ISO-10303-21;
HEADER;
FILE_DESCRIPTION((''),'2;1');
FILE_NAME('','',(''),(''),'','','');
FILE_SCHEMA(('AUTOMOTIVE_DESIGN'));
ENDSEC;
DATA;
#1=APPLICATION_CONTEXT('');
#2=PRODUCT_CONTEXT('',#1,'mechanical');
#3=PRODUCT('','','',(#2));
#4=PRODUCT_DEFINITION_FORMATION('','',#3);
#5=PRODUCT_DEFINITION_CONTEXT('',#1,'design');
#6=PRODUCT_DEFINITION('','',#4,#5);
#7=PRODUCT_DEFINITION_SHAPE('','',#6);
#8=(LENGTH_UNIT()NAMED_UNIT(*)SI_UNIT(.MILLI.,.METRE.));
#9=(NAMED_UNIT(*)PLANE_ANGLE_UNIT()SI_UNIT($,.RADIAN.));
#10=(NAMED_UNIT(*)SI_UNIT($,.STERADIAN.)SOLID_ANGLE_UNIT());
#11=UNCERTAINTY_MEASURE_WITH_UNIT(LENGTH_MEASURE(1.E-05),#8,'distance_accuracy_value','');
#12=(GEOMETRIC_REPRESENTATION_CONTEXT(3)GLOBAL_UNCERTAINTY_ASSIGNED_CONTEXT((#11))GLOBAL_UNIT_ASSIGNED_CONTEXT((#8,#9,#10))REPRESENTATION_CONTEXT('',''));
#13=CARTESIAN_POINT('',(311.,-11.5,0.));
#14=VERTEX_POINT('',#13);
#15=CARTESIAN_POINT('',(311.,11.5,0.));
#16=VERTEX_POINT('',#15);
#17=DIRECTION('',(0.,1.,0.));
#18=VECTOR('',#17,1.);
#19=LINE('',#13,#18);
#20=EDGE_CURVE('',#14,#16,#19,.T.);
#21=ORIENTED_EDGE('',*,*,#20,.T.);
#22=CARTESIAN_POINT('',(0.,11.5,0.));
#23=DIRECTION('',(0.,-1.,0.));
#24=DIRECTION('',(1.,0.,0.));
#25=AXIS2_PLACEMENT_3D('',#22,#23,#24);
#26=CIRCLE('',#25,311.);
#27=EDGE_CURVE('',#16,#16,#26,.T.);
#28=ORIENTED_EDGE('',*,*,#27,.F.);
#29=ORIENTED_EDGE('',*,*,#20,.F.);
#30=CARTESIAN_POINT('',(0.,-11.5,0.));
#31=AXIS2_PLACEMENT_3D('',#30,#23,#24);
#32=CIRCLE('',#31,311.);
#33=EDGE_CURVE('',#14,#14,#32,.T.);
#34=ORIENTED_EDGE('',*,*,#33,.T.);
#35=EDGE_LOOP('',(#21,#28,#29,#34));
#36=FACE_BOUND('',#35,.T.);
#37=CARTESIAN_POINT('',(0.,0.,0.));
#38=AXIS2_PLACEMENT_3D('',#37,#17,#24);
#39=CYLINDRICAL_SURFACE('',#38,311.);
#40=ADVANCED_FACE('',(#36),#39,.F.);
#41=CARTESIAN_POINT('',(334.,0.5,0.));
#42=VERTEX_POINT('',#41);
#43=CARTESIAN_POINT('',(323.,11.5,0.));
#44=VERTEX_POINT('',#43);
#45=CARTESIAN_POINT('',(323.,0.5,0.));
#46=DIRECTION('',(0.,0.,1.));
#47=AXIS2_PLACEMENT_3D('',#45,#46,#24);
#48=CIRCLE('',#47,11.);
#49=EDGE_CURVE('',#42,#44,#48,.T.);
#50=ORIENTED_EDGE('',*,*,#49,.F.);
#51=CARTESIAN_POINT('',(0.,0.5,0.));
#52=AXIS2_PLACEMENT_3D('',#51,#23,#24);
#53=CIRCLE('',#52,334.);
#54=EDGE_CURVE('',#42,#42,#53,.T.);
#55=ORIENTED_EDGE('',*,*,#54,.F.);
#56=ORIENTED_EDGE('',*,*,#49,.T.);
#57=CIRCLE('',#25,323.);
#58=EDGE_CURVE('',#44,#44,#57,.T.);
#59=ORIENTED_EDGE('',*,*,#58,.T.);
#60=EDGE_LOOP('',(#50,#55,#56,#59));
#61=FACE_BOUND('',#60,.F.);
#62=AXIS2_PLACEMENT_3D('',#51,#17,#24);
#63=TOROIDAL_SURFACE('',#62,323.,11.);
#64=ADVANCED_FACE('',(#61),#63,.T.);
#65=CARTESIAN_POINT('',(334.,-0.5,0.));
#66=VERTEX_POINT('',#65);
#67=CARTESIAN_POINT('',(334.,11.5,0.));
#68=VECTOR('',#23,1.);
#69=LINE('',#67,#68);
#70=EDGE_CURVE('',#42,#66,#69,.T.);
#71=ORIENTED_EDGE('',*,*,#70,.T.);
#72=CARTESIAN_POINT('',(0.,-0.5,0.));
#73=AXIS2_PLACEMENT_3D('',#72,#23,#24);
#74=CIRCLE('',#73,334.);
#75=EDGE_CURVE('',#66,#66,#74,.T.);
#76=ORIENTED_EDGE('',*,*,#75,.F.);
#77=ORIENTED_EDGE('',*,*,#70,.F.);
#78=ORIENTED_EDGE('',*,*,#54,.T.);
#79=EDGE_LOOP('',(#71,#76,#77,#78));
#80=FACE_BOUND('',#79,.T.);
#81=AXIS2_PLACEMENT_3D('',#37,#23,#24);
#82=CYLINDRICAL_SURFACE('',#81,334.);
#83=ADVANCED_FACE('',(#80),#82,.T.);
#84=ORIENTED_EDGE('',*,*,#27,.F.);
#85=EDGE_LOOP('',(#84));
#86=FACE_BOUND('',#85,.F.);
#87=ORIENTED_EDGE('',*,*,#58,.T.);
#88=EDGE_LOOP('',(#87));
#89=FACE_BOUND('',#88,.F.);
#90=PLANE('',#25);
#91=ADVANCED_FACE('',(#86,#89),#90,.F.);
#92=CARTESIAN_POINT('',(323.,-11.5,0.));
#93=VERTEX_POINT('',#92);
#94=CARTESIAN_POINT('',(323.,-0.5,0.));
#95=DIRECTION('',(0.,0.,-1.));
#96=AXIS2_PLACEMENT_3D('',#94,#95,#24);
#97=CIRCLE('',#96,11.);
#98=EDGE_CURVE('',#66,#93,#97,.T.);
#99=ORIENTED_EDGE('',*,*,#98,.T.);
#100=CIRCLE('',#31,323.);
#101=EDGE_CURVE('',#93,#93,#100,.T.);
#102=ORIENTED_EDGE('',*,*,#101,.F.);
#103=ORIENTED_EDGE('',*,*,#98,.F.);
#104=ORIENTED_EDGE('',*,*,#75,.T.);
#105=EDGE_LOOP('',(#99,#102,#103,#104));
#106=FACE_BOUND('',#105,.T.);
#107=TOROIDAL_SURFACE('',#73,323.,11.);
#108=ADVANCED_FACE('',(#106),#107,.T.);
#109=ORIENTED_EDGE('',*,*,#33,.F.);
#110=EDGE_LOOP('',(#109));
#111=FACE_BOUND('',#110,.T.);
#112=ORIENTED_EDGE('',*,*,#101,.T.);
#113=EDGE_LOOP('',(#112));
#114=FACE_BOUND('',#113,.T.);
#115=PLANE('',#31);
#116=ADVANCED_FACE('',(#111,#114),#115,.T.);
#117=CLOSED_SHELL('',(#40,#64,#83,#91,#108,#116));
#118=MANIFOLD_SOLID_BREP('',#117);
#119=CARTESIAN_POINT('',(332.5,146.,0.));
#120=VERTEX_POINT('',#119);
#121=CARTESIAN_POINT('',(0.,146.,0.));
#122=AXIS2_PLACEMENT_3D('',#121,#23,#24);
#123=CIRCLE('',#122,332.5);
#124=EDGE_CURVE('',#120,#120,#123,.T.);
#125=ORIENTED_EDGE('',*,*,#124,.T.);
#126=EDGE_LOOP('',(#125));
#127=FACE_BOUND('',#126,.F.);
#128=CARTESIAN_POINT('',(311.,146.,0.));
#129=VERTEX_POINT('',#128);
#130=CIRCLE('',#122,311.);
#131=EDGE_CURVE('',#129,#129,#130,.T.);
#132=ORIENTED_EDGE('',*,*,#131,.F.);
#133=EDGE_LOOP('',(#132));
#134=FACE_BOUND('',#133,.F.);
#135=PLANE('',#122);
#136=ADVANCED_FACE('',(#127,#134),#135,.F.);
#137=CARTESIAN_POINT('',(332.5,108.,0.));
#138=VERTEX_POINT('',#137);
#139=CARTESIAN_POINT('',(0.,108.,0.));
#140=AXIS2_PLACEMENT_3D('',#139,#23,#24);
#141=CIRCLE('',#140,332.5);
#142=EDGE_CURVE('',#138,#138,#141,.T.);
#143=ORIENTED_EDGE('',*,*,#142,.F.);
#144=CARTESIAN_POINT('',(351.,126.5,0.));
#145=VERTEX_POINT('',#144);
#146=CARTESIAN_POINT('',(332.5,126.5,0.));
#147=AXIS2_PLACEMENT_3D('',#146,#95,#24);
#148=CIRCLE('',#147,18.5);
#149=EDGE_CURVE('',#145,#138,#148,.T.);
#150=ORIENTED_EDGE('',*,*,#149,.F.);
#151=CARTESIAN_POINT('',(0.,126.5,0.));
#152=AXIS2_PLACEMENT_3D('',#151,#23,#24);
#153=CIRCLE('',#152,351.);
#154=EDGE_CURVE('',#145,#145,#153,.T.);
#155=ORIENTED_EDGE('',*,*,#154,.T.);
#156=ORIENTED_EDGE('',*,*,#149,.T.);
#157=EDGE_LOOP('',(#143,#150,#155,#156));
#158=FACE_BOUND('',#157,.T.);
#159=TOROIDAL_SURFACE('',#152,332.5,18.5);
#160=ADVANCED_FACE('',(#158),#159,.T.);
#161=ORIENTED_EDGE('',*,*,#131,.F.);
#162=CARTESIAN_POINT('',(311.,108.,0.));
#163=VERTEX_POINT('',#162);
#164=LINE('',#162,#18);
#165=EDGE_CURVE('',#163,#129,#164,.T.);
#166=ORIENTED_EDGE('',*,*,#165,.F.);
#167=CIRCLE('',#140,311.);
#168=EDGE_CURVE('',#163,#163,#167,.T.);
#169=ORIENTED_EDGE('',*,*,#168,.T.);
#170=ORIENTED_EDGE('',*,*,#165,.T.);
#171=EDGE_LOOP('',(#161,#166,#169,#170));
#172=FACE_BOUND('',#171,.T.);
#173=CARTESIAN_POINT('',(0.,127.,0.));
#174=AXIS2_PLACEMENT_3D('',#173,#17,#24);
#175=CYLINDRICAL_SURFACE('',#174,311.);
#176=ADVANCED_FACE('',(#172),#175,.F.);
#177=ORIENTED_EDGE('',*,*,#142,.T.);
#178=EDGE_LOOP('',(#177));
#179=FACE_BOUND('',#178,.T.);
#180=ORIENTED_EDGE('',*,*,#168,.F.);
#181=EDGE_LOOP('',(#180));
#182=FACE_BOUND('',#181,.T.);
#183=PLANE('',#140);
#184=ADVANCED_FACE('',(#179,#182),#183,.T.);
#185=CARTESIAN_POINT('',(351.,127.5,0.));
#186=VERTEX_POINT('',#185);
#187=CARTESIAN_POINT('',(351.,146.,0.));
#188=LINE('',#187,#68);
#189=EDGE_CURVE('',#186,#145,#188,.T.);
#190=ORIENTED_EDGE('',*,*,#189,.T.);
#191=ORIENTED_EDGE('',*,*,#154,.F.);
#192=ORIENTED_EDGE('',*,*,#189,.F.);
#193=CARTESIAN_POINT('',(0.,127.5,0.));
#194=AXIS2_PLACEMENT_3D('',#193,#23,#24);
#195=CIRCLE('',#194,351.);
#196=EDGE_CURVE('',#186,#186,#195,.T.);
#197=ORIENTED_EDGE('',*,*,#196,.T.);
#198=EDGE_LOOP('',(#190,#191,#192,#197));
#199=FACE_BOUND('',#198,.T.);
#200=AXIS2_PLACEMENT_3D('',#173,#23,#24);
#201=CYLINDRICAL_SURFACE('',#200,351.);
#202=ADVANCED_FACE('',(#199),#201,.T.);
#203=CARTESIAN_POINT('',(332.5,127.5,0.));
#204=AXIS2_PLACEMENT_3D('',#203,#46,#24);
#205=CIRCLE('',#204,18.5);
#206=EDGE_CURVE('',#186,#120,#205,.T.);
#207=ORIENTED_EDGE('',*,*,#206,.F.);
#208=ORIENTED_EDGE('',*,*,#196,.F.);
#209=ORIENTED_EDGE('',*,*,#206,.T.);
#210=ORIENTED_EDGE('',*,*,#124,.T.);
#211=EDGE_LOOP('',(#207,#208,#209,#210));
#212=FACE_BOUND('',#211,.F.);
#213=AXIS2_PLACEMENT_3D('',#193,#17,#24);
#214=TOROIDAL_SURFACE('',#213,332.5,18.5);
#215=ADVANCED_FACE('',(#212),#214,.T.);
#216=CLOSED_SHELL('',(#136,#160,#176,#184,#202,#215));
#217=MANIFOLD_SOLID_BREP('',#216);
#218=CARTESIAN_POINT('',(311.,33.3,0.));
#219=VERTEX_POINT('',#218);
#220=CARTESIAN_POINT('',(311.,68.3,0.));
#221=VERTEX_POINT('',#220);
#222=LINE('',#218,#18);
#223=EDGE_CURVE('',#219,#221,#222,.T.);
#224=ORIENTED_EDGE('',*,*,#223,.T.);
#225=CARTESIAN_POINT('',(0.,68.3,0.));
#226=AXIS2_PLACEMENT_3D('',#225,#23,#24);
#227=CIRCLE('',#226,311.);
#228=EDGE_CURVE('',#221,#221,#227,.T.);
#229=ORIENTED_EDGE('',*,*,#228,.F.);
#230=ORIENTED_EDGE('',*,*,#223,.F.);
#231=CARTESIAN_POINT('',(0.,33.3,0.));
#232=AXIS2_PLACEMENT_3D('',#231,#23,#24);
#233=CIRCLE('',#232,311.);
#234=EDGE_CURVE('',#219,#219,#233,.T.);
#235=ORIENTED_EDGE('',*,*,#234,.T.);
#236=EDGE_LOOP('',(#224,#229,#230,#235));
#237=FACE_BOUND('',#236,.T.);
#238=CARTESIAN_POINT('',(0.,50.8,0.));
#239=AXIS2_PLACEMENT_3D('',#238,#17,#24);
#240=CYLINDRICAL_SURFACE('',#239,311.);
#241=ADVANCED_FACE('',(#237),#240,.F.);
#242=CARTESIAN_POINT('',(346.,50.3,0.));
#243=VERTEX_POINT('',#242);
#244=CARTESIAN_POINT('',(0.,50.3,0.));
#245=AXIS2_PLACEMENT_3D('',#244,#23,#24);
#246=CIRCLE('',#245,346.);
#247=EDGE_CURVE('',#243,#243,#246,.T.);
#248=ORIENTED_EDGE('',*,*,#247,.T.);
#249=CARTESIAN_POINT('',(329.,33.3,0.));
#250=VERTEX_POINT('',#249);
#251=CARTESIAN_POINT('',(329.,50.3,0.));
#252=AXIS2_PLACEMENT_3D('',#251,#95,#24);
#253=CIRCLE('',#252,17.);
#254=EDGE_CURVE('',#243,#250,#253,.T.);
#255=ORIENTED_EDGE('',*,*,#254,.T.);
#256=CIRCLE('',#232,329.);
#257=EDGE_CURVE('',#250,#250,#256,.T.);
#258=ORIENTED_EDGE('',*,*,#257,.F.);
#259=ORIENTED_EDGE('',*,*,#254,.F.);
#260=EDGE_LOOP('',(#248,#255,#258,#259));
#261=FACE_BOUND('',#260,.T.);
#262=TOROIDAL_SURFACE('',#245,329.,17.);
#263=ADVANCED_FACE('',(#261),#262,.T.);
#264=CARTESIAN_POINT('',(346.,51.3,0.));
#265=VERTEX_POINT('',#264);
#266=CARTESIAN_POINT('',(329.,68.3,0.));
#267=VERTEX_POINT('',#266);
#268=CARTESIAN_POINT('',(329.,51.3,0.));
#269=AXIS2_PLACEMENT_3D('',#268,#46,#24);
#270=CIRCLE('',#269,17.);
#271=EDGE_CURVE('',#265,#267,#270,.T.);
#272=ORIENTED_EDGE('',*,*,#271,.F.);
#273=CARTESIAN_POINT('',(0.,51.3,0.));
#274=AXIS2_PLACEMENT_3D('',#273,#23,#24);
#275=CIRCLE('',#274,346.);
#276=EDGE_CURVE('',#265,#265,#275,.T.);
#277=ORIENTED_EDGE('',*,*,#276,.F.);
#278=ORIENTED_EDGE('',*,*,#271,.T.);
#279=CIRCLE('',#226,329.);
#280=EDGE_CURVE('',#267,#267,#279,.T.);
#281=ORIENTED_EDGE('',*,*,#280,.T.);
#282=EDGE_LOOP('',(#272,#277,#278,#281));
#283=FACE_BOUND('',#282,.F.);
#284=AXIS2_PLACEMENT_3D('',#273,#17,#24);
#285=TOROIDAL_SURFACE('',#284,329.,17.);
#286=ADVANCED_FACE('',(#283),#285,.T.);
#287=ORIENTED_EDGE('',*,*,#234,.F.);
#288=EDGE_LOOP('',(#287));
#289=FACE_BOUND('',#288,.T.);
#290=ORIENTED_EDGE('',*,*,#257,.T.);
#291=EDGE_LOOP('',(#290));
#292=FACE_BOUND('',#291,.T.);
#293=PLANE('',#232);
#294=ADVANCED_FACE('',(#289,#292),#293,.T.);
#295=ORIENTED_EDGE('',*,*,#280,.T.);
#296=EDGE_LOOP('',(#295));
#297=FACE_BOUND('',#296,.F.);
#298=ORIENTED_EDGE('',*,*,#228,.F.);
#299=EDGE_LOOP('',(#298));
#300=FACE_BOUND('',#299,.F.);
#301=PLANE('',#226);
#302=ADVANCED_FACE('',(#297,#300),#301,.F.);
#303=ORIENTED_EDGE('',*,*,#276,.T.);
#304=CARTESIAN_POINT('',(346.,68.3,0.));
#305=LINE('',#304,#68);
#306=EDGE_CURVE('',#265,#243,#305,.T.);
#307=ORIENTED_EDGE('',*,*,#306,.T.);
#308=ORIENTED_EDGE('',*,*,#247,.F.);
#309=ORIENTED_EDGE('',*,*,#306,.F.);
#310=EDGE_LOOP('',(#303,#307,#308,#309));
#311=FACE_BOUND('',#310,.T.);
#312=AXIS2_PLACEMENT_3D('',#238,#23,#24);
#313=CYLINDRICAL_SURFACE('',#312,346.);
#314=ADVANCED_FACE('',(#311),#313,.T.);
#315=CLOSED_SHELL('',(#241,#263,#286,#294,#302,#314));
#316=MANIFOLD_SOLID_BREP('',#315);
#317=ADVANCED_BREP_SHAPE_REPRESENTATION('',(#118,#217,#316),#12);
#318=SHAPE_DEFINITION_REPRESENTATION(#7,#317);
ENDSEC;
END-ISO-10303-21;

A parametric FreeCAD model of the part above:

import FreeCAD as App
import Part
import Sketcher
from FreeCAD import Vector


def edges_at(feature, points):
    """Names of the edges that pass closest to the given points."""
    edges = feature.Shape.Edges
    near = lambda p: min(range(len(edges)), key=lambda i: edges[i].distToShape(Part.Vertex(*p))[0])
    return sorted({f"Edge{near(p) + 1}" for p in points})

doc = App.newDocument("Part")
params = doc.addObject("Spreadsheet::Sheet", "Params")
for row, (alias, value) in enumerate([
    ("sketch1_diameter", "668 mm"),
    ("sketch1_diameter2", "622 mm"),
    ("pad1_length", "23 mm"),
    ("fillet_radius", "11 mm"),
    ("sketch2_diameter", "692 mm"),
    ("sketch2_diameter2", "622 mm"),
    ("pad2_length", "35 mm"),
    ("fillet2_radius", "17 mm"),
    ("sketch3_diameter", "702 mm"),
    ("sketch3_diameter2", "622 mm"),
    ("pad3_length", "38 mm"),
    ("fillet3_radius", "18.5 mm"),
], start=1):
    params.set(f"A{row}", alias)
    params.set(f"B{row}", "=" + value)
    params.setAlias(f"B{row}", alias)

body = doc.addObject("PartDesign::Body", "Body")

sketch1 = doc.addObject("Sketcher::SketchObject", "Sketch")
body.addObject(sketch1)
sketch1.AttachmentSupport = (doc.XZ_Plane, [""])
sketch1.MapMode = "FlatFace"
sketch1.addGeometry([
    Part.Circle(Vector(0, 0, 0), Vector(0, 0, 1), 334),
    Part.Circle(Vector(0, 0, 0), Vector(0, 0, 1), 311),
], False)
sketch1.addConstraint([
    Sketcher.Constraint("Coincident", 0, 3, -1, 1),
    Sketcher.Constraint("Coincident", 1, 3, -1, 1),
    Sketcher.Constraint("Diameter", 0, 668.0),
    Sketcher.Constraint("Diameter", 1, 622.0),
])
sketch1.setExpression("Constraints[2]", "Params.sketch1_diameter")
sketch1.setExpression("Constraints[3]", "Params.sketch1_diameter2")
pad1 = doc.addObject("PartDesign::Pad", "Pad")
body.addObject(pad1)
pad1.Profile = sketch1
pad1.setExpression("Length", "Params.pad1_length")
pad1.Midplane = True
doc.recompute()

fillet = doc.addObject("PartDesign::Fillet", "Fillet")
body.addObject(fillet)
fillet.Base = (pad1, edges_at(pad1, [(-334, -11.5, 0), (-334, 11.5, 0)]))
fillet.setExpression("Radius", "Params.fillet_radius")
body2 = doc.addObject("PartDesign::Body", "Body001")

sketch2 = doc.addObject("Sketcher::SketchObject", "Sketch001")
body2.addObject(sketch2)
sketch2.AttachmentSupport = (doc.getObject("XZ_Plane001"), [""])
sketch2.MapMode = "FlatFace"
sketch2.AttachmentOffset = App.Placement(Vector(0, 0, -50.8), App.Rotation())
sketch2.addGeometry([
    Part.Circle(Vector(0, 0, 0), Vector(0, 0, 1), 346),
    Part.Circle(Vector(0, 0, 0), Vector(0, 0, 1), 311),
], False)
sketch2.addConstraint([
    Sketcher.Constraint("Coincident", 0, 3, -1, 1),
    Sketcher.Constraint("Coincident", 1, 3, -1, 1),
    Sketcher.Constraint("Diameter", 0, 692.0),
    Sketcher.Constraint("Diameter", 1, 622.0),
])
sketch2.setExpression("Constraints[2]", "Params.sketch2_diameter")
sketch2.setExpression("Constraints[3]", "Params.sketch2_diameter2")
pad2 = doc.addObject("PartDesign::Pad", "Pad001")
body2.addObject(pad2)
pad2.Profile = sketch2
pad2.setExpression("Length", "Params.pad2_length")
pad2.Midplane = True
doc.recompute()

fillet2 = doc.addObject("PartDesign::Fillet", "Fillet001")
body2.addObject(fillet2)
fillet2.Base = (pad2, edges_at(pad2, [(-346, 33.3, 0), (-346, 68.3, 0)]))
fillet2.setExpression("Radius", "Params.fillet2_radius")
body3 = doc.addObject("PartDesign::Body", "Body002")

sketch3 = doc.addObject("Sketcher::SketchObject", "Sketch002")
body3.addObject(sketch3)
sketch3.AttachmentSupport = (doc.getObject("XZ_Plane002"), [""])
sketch3.MapMode = "FlatFace"
sketch3.AttachmentOffset = App.Placement(Vector(0, 0, -127), App.Rotation())
sketch3.addGeometry([
    Part.Circle(Vector(0, 0, 0), Vector(0, 0, 1), 351),
    Part.Circle(Vector(0, 0, 0), Vector(0, 0, 1), 311),
], False)
sketch3.addConstraint([
    Sketcher.Constraint("Coincident", 0, 3, -1, 1),
    Sketcher.Constraint("Coincident", 1, 3, -1, 1),
    Sketcher.Constraint("Diameter", 0, 702.0),
    Sketcher.Constraint("Diameter", 1, 622.0),
])
sketch3.setExpression("Constraints[2]", "Params.sketch3_diameter")
sketch3.setExpression("Constraints[3]", "Params.sketch3_diameter2")
pad3 = doc.addObject("PartDesign::Pad", "Pad002")
body3.addObject(pad3)
pad3.Profile = sketch3
pad3.setExpression("Length", "Params.pad3_length")
pad3.Midplane = True
doc.recompute()

fillet3 = doc.addObject("PartDesign::Fillet", "Fillet002")
body3.addObject(fillet3)
fillet3.Base = (pad3, edges_at(pad3, [(-351, 108, 0), (-351, 146, 0)]))
fillet3.setExpression("Radius", "Params.fillet3_radius")

doc.recompute()
